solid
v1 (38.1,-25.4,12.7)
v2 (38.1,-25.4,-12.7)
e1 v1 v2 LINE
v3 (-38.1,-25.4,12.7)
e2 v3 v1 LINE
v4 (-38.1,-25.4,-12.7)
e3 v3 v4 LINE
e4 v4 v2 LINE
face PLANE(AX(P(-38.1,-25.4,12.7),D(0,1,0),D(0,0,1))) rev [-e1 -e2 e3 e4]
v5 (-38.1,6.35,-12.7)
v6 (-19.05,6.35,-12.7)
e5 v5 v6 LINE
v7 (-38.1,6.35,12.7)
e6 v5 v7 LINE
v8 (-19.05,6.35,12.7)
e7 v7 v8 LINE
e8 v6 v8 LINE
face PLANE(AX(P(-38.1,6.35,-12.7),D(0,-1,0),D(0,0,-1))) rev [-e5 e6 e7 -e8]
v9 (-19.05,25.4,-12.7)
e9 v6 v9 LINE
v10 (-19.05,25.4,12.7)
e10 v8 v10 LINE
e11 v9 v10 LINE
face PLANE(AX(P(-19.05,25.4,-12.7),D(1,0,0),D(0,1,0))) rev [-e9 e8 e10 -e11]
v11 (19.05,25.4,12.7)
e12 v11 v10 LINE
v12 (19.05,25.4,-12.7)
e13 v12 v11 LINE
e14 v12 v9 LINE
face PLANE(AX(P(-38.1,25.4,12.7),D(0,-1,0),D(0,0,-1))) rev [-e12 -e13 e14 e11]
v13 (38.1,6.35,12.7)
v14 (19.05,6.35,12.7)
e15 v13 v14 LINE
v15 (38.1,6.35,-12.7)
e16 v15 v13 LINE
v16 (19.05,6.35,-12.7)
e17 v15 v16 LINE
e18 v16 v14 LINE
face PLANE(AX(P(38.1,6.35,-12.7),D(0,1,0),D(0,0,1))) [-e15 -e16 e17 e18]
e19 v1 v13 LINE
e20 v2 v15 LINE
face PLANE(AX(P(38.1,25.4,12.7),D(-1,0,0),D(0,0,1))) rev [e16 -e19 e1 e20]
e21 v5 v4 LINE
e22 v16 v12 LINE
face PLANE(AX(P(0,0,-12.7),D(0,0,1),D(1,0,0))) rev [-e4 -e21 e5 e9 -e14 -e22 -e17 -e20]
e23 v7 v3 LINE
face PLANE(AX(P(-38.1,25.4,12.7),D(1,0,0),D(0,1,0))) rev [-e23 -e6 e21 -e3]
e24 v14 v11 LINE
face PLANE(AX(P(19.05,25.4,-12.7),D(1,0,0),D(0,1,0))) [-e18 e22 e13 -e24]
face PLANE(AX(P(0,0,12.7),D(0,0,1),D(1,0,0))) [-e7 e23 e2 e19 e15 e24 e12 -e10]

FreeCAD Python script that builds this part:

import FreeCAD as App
import Part
import Sketcher

V = App.Vector
Q = App.Units.Quantity


def add_polygon(sketch, points):
    """Adds a closed chain of lines whose ends are joined by coincident constraints."""
    first, n = sketch.GeometryCount, len(points)
    for a, b in zip(points, points[1:] + points[:1]):
        sketch.addGeometry(Part.LineSegment(App.Vector(*a, 0), App.Vector(*b, 0)), False)
    for i in range(n):
        sketch.addConstraint(Sketcher.Constraint("Coincident", first + i, 2, first + (i + 1) % n, 1))

doc = App.newDocument("Part")
params = doc.addObject("Spreadsheet::Sheet", "Params")
for row, (alias, value) in enumerate([
    ("sketch1_width", "3 in"),
    ("sketch1_height", "2 in"),
    ("pad1_length", "1 in"),
    ("sketch2_width", "0.75 in"),
], start=1):
    params.set(f"A{row}", alias)
    params.set(f"B{row}", "=" + value)
    params.setAlias(f"B{row}", alias)

body = doc.addObject("PartDesign::Body", "Body")

# Sketch on XY plane
sketch1 = body.newObject("Sketcher::SketchObject", "Sketch")
sketch1.AttachmentSupport = (doc.getObject("XY_Plane"), [""])
sketch1.MapMode = "FlatFace"
add_polygon(sketch1, [(-38.1, 25.4), (-38.1, -25.4), (38.1, -25.4), (38.1, 25.4)])  # lines 0-3
sketch1.addConstraint([
    Sketcher.Constraint("Vertical", 0),
    Sketcher.Constraint("Horizontal", 1),
    Sketcher.Constraint("Vertical", 2),
    Sketcher.Constraint("Horizontal", 3),
    Sketcher.Constraint("Symmetric", 0, 2, 2, 2, -1, 1),
    Sketcher.Constraint("DistanceX", 1, 1, 1, 2, Q("3 in")),
    Sketcher.Constraint("DistanceY", 0, 2, 0, 1, Q("2 in")),
])
sketch1.setExpression("Constraints[9]", "Params.sketch1_width")
sketch1.setExpression("Constraints[10]", "Params.sketch1_height")
pad1 = body.newObject("PartDesign::Pad", "Pad")
pad1.Profile = sketch1
pad1.setExpression("Length", "Params.pad1_length")
pad1.Midplane = True

# Sketch on XY plane
sketch2 = body.newObject("Sketcher::SketchObject", "Sketch001")
sketch2.AttachmentSupport = (doc.getObject("XY_Plane"), [""])
sketch2.MapMode = "FlatFace"
sketch2.AttachmentOffset = App.Placement(V(0, 0, 0.5 * 25.4), App.Rotation())
add_polygon(sketch2, [(-38.1, 25.4), (-38.1, 6.35), (-19.05, 6.35), (-19.05, 25.4)])  # lines 0-3
sketch2.addConstraint([
    Sketcher.Constraint("Vertical", 0),
    Sketcher.Constraint("Horizontal", 1),
    Sketcher.Constraint("Vertical", 2),
    Sketcher.Constraint("Horizontal", 3),
    Sketcher.Constraint("Equal", 3, 0),
    Sketcher.Constraint("DistanceY", -1, 1, 2, 2, Q("1 in")),
    Sketcher.Constraint("DistanceX", 1, 1, 1, 2, Q("0.75 in")),
    Sketcher.Constraint("DistanceX", 0, 2, -1, 1, Q("1.5 in")),
])
sketch2.setExpression("Constraints[10]", "Params.sketch2_width")
pocket1 = body.newObject("PartDesign::Pocket", "Pocket")
pocket1.Profile = sketch2
pocket1.Type = "ThroughAll"
doc.recompute()

mirrored = body.newObject("PartDesign::Mirrored", "Mirrored")
mirrored.Originals = [pocket1]
mirrored.MirrorPlane = (doc.getObject("YZ_Plane"), [""])
body.Tip = mirrored

doc.recompute()
